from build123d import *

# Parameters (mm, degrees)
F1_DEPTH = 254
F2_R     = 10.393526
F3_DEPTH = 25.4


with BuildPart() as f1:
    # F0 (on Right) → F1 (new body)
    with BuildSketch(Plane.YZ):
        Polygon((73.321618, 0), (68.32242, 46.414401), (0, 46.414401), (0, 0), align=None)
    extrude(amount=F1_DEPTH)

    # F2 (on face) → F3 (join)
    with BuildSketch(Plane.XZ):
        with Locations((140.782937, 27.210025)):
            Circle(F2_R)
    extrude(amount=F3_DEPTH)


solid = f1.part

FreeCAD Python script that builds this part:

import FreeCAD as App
import Part
import Sketcher
Q = App.Units.Quantity


def add_polygon(sketch, points):
    """Adds a closed chain of lines whose ends are joined by coincident constraints."""
    first, n = sketch.GeometryCount, len(points)
    for a, b in zip(points, points[1:] + points[:1]):
        sketch.addGeometry(Part.LineSegment(App.Vector(*a, 0), App.Vector(*b, 0)), False)
    for i in range(n):
        sketch.addConstraint(Sketcher.Constraint("Coincident", first + i, 2, first + (i + 1) % n, 1))

doc = App.newDocument("Part")
body = doc.addObject("PartDesign::Body", "Body")

sketch1 = body.newObject("Sketcher::SketchObject", "Sketch")
sketch1.AttachmentSupport = (doc.getObject("YZ_Plane"), [""])
sketch1.MapMode = "FlatFace"
add_polygon(sketch1, [(73, 0), (68, 46), (0, 46), (0, 0)])
sketch1.addConstraint([
    Sketcher.Constraint("Horizontal", 1),
    Sketcher.Constraint("Vertical", 2),
    Sketcher.Constraint("Horizontal", 3),
    Sketcher.Constraint("Coincident", 2, 2, -1, 1),
    Sketcher.Constraint("DistanceY", 2, 2, 2, 1, Q("46.414401 mm")),
    Sketcher.Constraint("DistanceX", 1, 2, 1, 1, Q("68.32242 mm")),
    Sketcher.Constraint("DistanceX", 3, 1, 3, 2, Q("73.321618 mm")),
])
pad1 = body.newObject("PartDesign::Pad", "Pad")
pad1.Profile = sketch1
pad1.Length = Q("10 in")

sketch2 = body.newObject("Sketcher::SketchObject", "Sketch001")
sketch2.AttachmentSupport = (doc.getObject("XZ_Plane"), [""])
sketch2.MapMode = "FlatFace"
sketch2.addGeometry(Part.Circle(App.Vector(141, 27, 0), App.Vector(0, 0, 1), 10), False)
sketch2.addConstraint([
    Sketcher.Constraint("Diameter", 0, Q("20.787052 mm")),
    Sketcher.Constraint("DistanceX", -1, 1, 0, 3, Q("140.782937 mm")),
    Sketcher.Constraint("DistanceY", -1, 1, 0, 3, Q("27.210025 mm")),
])
pad2 = body.newObject("PartDesign::Pad", "Pad001")
pad2.Profile = sketch2
pad2.Length = Q("1 in")

doc.recompute()
